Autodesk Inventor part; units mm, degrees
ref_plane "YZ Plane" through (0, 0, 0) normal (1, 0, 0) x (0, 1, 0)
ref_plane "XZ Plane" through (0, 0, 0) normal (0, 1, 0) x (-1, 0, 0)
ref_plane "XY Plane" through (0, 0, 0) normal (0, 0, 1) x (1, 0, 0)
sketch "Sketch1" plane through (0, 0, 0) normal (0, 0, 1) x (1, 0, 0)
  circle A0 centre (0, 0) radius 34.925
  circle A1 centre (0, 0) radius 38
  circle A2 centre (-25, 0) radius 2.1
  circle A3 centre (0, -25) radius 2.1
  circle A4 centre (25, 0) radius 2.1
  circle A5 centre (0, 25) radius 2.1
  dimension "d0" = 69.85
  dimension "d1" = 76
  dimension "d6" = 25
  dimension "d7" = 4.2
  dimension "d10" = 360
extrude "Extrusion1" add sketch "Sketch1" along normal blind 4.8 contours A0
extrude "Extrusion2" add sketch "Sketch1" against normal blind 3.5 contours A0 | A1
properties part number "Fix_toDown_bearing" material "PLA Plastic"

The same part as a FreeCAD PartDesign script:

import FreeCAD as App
import Part
import Sketcher
from FreeCAD import Vector
Q = App.Units.Quantity

doc = App.newDocument("Part")
body = doc.addObject("PartDesign::Body", "Body")

sketch1 = body.newObject("Sketcher::SketchObject", "Sketch")
sketch1.AttachmentSupport = (doc.getObject("XY_Plane"), [""])
sketch1.MapMode = "FlatFace"
sketch1.addGeometry([
    Part.Circle(Vector(0, 0, 0), Vector(0, 0, 1), 34.925),
    Part.Circle(Vector(0, -25, 0), Vector(0, 0, 1), 2.1),
    Part.Circle(Vector(-25, 0, 0), Vector(0, 0, 1), 2.1),
    Part.Circle(Vector(25, 0, 0), Vector(0, 0, 1), 2.1),
    Part.Circle(Vector(0, 25, 0), Vector(0, 0, 1), 2.1),
], False)
sketch1.addConstraint([
    Sketcher.Constraint("Coincident", 0, 3, -1, 1),
    Sketcher.Constraint("Equal", 1, 2),
    Sketcher.Constraint("Equal", 2, 3),
    Sketcher.Constraint("Equal", 3, 4),
    Sketcher.Constraint("Symmetric", 2, 3, 3, 3, -1, 1),
    Sketcher.Constraint("Symmetric", 1, 3, 4, 3, -1, 1),
    Sketcher.Constraint("PointOnObject", 1, 3, -2),
    Sketcher.Constraint("PointOnObject", 2, 3, -1),
    Sketcher.Constraint("Diameter", 1, Q("4.2 mm")),
    Sketcher.Constraint("Diameter", 0, Q("69.85 mm")),
    Sketcher.Constraint("DistanceY", 1, 3, -1, 1, Q("25 mm")),
    Sketcher.Constraint("DistanceX", 2, 3, -1, 1, Q("25 mm")),
])
pad1 = body.newObject("PartDesign::Pad", "Pad")
pad1.Profile = sketch1
pad1.Length = 4.8

sketch2 = body.newObject("Sketcher::SketchObject", "Sketch001")
sketch2.AttachmentSupport = (doc.getObject("XY_Plane"), [""])
sketch2.MapMode = "FlatFace"
sketch2.addGeometry([
    Part.Circle(Vector(0, 0, 0), Vector(0, 0, 1), 38),
    Part.Circle(Vector(0, -25, 0), Vector(0, 0, 1), 2.1),
    Part.Circle(Vector(-25, 0, 0), Vector(0, 0, 1), 2.1),
    Part.Circle(Vector(25, 0, 0), Vector(0, 0, 1), 2.1),
    Part.Circle(Vector(0, 25, 0), Vector(0, 0, 1), 2.1),
], False)
sketch2.addConstraint([
    Sketcher.Constraint("Coincident", 0, 3, -1, 1),
    Sketcher.Constraint("Equal", 1, 2),
    Sketcher.Constraint("Equal", 2, 3),
    Sketcher.Constraint("Equal", 3, 4),
    Sketcher.Constraint("Symmetric", 2, 3, 3, 3, -1, 1),
    Sketcher.Constraint("Symmetric", 1, 3, 4, 3, -1, 1),
    Sketcher.Constraint("PointOnObject", 1, 3, -2),
    Sketcher.Constraint("PointOnObject", 2, 3, -1),
    Sketcher.Constraint("Diameter", 0, Q("76 mm")),
    Sketcher.Constraint("Diameter", 1, Q("4.2 mm")),
    Sketcher.Constraint("DistanceY", 1, 3, -1, 1, Q("25 mm")),
    Sketcher.Constraint("DistanceX", 2, 3, -1, 1, Q("25 mm")),
])
pad2 = body.newObject("PartDesign::Pad", "Pad001")
pad2.Profile = sketch2
pad2.Length = 3.5
pad2.Reversed = True

doc.recompute()
